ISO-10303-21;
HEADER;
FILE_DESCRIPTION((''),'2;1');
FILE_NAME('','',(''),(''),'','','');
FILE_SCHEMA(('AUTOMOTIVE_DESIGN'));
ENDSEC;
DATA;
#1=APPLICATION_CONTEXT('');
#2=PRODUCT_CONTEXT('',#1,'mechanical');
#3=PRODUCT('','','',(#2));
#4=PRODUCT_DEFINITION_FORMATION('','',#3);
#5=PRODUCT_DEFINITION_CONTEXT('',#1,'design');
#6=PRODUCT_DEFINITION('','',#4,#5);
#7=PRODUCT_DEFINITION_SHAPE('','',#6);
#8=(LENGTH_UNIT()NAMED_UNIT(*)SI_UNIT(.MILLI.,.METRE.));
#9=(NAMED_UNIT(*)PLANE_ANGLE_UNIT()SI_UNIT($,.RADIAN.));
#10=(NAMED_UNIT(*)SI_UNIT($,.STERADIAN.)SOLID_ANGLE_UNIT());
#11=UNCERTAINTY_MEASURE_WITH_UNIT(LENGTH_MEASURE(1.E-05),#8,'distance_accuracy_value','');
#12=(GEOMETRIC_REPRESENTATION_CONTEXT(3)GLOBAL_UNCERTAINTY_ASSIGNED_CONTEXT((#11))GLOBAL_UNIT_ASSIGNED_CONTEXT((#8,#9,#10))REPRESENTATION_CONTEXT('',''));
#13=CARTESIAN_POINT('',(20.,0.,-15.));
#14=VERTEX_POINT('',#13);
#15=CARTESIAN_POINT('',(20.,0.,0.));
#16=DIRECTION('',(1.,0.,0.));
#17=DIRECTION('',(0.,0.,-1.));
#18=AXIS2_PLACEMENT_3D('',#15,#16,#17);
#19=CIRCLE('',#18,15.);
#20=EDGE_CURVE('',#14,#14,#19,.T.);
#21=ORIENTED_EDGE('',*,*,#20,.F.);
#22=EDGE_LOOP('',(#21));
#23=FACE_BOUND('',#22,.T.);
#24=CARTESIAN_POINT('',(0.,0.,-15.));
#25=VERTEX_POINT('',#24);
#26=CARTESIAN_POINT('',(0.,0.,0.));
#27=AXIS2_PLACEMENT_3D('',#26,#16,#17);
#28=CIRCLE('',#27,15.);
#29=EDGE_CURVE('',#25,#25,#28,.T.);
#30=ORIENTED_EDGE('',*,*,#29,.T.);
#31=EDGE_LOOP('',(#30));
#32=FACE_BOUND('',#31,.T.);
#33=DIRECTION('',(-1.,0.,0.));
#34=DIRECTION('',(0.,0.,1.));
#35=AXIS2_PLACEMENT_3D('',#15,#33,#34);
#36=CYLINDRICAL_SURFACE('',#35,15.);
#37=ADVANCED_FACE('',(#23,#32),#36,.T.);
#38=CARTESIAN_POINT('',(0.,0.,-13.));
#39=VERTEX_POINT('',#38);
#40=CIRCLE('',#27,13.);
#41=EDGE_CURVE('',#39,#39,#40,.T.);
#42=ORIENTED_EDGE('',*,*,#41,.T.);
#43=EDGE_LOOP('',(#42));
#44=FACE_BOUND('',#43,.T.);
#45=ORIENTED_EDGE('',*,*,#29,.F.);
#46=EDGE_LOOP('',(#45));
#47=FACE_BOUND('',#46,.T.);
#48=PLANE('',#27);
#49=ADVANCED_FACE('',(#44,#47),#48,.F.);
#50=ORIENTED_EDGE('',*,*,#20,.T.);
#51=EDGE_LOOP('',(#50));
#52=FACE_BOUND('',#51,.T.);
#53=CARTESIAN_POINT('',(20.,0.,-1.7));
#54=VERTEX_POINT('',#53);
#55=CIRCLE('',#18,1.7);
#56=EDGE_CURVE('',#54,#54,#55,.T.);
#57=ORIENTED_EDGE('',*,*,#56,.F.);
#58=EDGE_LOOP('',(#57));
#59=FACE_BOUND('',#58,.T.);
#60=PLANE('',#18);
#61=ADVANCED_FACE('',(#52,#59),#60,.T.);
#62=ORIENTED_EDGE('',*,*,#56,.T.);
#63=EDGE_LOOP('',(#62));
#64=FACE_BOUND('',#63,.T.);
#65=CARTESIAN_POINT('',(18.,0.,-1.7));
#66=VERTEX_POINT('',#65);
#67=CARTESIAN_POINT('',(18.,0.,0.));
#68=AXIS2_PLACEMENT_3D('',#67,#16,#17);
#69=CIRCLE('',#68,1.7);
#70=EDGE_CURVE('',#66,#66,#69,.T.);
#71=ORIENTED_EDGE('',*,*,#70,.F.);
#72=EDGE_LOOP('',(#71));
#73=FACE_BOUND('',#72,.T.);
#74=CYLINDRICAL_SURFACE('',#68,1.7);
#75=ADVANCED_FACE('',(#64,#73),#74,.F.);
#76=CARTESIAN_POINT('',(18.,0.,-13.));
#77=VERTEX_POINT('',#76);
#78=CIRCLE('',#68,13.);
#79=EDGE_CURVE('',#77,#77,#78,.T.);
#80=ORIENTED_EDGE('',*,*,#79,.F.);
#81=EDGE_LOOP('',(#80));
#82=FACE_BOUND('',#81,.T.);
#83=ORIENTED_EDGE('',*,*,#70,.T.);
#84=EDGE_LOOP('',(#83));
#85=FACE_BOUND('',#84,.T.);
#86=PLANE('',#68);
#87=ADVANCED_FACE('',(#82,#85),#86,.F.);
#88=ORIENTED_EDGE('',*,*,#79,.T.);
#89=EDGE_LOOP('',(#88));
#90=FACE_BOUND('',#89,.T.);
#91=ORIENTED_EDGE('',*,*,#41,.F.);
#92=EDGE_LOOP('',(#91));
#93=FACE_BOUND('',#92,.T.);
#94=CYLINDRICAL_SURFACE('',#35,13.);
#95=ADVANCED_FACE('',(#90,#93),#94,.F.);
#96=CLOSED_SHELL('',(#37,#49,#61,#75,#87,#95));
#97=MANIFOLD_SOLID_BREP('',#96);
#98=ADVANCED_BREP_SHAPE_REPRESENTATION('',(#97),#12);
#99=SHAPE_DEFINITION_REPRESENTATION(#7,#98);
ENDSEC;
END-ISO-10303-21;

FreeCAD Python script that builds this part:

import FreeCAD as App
import Part
import Sketcher

V = App.Vector
Q = App.Units.Quantity


def faces_at(feature, points):
    """Names of the faces that lie closest to the given points."""
    faces = feature.Shape.Faces
    near = lambda p: min(range(len(faces)), key=lambda i: faces[i].distToShape(Part.Vertex(*p))[0])
    return sorted({f"Face{near(p) + 1}" for p in points})

doc = App.newDocument("Part")
body = doc.addObject("PartDesign::Body", "Body")

# Sketch on YZ plane
sketch1 = body.newObject("Sketcher::SketchObject", "Sketch")
sketch1.AttachmentSupport = (doc.getObject("YZ_Plane"), [""])
sketch1.MapMode = "FlatFace"
sketch1.addGeometry(Part.Circle(V(0, 0, 0), V(0, 0, 1), 15), False)
sketch1.addConstraint([
    Sketcher.Constraint("Coincident", 0, 3, -1, 1),
    Sketcher.Constraint("Diameter", 0, Q("30 mm")),
])
pad1 = body.newObject("PartDesign::Pad", "Pad")
pad1.Profile = sketch1
pad1.Length = 20
doc.recompute()

thickness = body.newObject("PartDesign::Thickness", "Thickness")
thickness.Base = (pad1, faces_at(pad1, [(0, 0, 0)]))
thickness.Value = 2
thickness.Reversed = True
thickness.Join = "Intersection"

# Sketch on YZ plane
sketch2 = body.newObject("Sketcher::SketchObject", "Sketch001")
sketch2.AttachmentSupport = (doc.getObject("YZ_Plane"), [""])
sketch2.MapMode = "FlatFace"
sketch2.AttachmentOffset = App.Placement(V(0, 0, 20), App.Rotation())
sketch2.addGeometry(Part.Circle(V(0, 0, 0), V(0, 0, 1), 1.7), False)
sketch2.addConstraint([
    Sketcher.Constraint("Coincident", 0, 3, -1, 1),
    Sketcher.Constraint("Diameter", 0, Q("3.4 mm")),
])
pocket1 = body.newObject("PartDesign::Pocket", "Pocket")
pocket1.Profile = sketch2
pocket1.Length = 2

doc.recompute()
